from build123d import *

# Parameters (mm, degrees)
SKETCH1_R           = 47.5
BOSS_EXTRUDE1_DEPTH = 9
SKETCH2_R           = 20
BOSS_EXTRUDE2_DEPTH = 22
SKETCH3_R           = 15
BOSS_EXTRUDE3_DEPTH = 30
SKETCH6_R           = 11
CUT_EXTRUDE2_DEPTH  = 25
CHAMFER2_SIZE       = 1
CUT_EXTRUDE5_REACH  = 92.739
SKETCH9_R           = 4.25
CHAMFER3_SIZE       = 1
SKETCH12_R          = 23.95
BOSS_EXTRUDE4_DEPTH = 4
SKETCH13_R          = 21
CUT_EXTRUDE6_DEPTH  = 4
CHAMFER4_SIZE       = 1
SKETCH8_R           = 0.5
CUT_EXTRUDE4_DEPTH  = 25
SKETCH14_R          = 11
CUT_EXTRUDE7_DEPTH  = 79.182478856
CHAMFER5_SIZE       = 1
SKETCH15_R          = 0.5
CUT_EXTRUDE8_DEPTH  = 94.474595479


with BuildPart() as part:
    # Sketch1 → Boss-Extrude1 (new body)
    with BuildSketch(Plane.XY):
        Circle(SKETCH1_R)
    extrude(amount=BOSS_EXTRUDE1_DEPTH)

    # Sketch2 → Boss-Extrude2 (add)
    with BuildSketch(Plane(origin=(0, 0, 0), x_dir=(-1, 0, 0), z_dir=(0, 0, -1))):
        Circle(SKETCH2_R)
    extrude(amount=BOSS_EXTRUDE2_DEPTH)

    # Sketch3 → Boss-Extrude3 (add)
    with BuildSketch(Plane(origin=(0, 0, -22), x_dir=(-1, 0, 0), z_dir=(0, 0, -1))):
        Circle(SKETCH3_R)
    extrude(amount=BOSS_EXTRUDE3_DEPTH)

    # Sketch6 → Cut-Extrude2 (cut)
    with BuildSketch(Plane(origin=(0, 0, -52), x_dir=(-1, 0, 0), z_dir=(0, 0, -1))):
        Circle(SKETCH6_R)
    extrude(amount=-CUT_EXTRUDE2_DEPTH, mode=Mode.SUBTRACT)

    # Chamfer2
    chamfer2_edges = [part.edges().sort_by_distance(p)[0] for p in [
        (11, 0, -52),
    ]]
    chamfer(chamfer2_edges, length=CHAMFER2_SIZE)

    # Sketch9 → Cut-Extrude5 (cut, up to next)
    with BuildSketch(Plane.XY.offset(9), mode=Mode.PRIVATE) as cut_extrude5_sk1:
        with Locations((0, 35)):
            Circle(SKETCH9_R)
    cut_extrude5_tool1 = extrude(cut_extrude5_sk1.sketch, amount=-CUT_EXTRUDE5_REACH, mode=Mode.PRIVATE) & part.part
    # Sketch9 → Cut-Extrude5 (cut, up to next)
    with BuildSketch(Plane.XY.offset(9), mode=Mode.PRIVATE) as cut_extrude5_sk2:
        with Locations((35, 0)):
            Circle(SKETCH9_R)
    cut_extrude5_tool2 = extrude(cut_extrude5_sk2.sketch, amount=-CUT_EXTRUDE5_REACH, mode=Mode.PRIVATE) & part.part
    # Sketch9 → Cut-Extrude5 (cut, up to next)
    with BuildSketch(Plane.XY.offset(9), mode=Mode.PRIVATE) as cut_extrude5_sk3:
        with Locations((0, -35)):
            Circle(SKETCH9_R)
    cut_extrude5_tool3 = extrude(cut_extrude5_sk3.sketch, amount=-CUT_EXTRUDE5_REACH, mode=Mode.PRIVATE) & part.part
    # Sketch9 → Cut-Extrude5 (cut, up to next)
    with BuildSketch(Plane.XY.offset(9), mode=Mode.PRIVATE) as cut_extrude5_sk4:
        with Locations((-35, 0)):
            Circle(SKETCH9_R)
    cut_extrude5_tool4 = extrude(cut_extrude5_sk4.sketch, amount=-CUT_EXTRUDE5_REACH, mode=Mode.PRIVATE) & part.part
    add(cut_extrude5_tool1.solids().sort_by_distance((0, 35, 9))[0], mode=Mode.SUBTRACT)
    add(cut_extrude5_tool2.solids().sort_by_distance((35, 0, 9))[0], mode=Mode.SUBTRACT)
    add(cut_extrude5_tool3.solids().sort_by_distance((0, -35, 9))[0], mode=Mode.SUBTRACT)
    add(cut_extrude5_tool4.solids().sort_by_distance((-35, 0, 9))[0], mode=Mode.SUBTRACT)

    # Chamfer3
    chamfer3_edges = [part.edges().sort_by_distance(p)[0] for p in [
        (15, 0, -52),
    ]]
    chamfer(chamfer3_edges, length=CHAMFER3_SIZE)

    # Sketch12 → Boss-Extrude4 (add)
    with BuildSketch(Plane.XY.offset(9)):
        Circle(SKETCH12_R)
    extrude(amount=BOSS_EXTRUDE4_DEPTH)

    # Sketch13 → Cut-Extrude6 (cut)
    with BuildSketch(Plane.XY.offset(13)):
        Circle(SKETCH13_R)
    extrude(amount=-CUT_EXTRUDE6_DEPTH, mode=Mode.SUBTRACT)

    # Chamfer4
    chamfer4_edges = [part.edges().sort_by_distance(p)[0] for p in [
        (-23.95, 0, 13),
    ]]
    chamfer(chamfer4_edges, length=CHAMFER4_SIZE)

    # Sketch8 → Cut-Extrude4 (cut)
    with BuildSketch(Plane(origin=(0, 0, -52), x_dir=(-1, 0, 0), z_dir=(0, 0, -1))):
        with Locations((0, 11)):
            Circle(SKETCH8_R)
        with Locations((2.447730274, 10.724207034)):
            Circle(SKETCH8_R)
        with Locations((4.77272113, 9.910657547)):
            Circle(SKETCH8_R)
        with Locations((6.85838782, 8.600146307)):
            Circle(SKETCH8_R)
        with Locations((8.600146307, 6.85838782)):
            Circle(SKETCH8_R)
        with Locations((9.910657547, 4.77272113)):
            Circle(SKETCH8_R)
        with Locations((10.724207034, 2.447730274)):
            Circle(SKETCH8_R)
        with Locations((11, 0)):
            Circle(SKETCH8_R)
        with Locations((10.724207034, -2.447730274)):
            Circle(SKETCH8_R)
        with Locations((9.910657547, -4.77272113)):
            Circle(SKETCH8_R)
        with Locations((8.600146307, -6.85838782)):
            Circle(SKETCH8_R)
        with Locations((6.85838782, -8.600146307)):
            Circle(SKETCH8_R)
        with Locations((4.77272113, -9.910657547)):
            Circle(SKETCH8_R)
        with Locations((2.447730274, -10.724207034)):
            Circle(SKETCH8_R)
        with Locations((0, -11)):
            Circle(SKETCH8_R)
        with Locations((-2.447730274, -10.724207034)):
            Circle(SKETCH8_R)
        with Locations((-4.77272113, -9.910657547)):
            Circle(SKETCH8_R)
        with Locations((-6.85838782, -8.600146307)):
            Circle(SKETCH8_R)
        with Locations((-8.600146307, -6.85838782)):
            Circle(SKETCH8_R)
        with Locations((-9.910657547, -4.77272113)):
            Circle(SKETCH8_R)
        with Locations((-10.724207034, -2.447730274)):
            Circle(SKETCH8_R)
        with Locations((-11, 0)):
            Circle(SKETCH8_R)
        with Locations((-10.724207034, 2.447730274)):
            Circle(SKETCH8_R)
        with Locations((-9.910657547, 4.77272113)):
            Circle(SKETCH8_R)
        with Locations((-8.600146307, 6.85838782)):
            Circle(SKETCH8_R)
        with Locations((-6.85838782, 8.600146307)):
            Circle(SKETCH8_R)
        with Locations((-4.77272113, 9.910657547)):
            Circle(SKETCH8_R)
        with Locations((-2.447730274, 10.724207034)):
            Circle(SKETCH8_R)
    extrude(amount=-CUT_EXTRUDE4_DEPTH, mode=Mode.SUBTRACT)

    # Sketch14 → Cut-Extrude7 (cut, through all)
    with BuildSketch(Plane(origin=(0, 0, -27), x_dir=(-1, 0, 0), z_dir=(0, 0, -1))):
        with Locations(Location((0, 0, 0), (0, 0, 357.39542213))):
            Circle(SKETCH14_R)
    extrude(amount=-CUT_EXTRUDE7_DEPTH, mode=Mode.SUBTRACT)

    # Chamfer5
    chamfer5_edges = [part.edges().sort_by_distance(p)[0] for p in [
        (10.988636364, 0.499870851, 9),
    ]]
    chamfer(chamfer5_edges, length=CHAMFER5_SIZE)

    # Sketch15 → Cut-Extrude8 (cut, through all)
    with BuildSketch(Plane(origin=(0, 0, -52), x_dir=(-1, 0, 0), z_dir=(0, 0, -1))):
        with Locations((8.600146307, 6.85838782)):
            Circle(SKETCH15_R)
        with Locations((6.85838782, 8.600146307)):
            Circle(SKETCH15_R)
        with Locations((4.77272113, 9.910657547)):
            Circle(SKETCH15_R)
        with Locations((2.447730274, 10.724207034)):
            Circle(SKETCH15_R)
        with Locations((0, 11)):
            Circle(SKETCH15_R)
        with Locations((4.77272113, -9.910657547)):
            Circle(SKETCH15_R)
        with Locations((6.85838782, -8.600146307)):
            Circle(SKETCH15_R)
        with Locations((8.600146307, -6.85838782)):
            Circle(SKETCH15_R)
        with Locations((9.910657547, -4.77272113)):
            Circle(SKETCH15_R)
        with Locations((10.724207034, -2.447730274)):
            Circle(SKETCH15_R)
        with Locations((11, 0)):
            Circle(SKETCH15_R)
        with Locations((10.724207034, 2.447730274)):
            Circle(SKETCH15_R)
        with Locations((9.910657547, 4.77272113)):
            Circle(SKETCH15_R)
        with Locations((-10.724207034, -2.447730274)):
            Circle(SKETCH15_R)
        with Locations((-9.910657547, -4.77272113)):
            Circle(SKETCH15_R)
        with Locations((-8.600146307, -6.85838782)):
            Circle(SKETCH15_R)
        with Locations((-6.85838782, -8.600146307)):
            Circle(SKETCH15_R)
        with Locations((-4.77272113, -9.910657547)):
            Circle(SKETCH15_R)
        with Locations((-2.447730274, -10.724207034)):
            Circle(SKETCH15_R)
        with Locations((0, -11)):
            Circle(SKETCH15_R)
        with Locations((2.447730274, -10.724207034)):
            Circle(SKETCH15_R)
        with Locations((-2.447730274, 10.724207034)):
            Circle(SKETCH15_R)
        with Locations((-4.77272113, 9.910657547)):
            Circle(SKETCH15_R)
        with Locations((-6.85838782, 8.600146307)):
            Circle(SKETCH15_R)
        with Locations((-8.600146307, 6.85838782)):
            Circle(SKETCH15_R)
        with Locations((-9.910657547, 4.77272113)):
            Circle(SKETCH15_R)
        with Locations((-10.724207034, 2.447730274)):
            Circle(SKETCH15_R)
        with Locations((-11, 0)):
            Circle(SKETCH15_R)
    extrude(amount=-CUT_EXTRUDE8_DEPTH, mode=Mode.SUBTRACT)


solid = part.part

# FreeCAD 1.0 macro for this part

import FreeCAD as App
import Part
import Sketcher
from FreeCAD import Vector
Q = App.Units.Quantity


def edges_at(feature, points):
    """Names of the edges that pass closest to the given points."""
    edges = feature.Shape.Edges
    near = lambda p: min(range(len(edges)), key=lambda i: edges[i].distToShape(Part.Vertex(*p))[0])
    return sorted({f"Edge{near(p) + 1}" for p in points})

doc = App.newDocument("Part")
body = doc.addObject("PartDesign::Body", "Body")

# Sketch on XY plane
sketch1 = body.newObject("Sketcher::SketchObject", "Sketch")
sketch1.AttachmentSupport = (doc.getObject("XY_Plane"), [""])
sketch1.MapMode = "FlatFace"
sketch1.addGeometry(Part.Circle(Vector(0, 0, 0), Vector(0, 0, 1), 48), False)
sketch1.addConstraint([
    Sketcher.Constraint("Coincident", 0, 3, -1, 1),
    Sketcher.Constraint("Diameter", 0, Q("95 mm")),
])
pad1 = body.newObject("PartDesign::Pad", "Pad")
pad1.Profile = sketch1
pad1.Length = 9

# Sketch on XY plane
sketch2 = body.newObject("Sketcher::SketchObject", "Sketch001")
sketch2.AttachmentSupport = (doc.getObject("XY_Plane"), [""])
sketch2.MapMode = "FlatFace"
sketch2.addGeometry(Part.Circle(Vector(0, 0, 0), Vector(0, 0, 1), 20), False)
sketch2.addConstraint([
    Sketcher.Constraint("Coincident", 0, 3, -1, 1),
    Sketcher.Constraint("Diameter", 0, Q("40 mm")),
])
pad2 = body.newObject("PartDesign::Pad", "Pad001")
pad2.Profile = sketch2
pad2.Length = 22
pad2.Reversed = True

# Sketch on XY plane
sketch3 = body.newObject("Sketcher::SketchObject", "Sketch002")
sketch3.AttachmentSupport = (doc.getObject("XY_Plane"), [""])
sketch3.MapMode = "FlatFace"
sketch3.AttachmentOffset = App.Placement(Vector(0, 0, -22), App.Rotation())
sketch3.addGeometry(Part.Circle(Vector(0, 0, 0), Vector(0, 0, 1), 15), False)
sketch3.addConstraint([
    Sketcher.Constraint("Coincident", 0, 3, -1, 1),
    Sketcher.Constraint("Diameter", 0, Q("30 mm")),
])
pad3 = body.newObject("PartDesign::Pad", "Pad002")
pad3.Profile = sketch3
pad3.Length = 30
pad3.Reversed = True

# Sketch on XY plane
sketch4 = body.newObject("Sketcher::SketchObject", "Sketch003")
sketch4.AttachmentSupport = (doc.getObject("XY_Plane"), [""])
sketch4.MapMode = "FlatFace"
sketch4.AttachmentOffset = App.Placement(Vector(0, 0, -52), App.Rotation())
sketch4.addGeometry(Part.Circle(Vector(0, 0, 0), Vector(0, 0, 1), 11), False)
sketch4.addConstraint([
    Sketcher.Constraint("Coincident", 0, 3, -1, 1),
    Sketcher.Constraint("Diameter", 0, Q("22 mm")),
])
pocket1 = body.newObject("PartDesign::Pocket", "Pocket")
pocket1.Profile = sketch4
pocket1.Length = 25
pocket1.Reversed = True
doc.recompute()

chamfer = body.newObject("PartDesign::Chamfer", "Chamfer")
chamfer.Base = (pocket1, edges_at(pocket1, [(11, 0, -52)]))
chamfer.Size = 1

# Sketch on XY plane
sketch5 = body.newObject("Sketcher::SketchObject", "Sketch004")
sketch5.AttachmentSupport = (doc.getObject("XY_Plane"), [""])
sketch5.MapMode = "FlatFace"
sketch5.AttachmentOffset = App.Placement(Vector(0, 0, 9), App.Rotation())
sketch5.addGeometry(Part.Circle(Vector(0, 35, 0), Vector(0, 0, 1), 4.2), False)
sketch5.addConstraint([
    Sketcher.Constraint("PointOnObject", 0, 3, -2),
    Sketcher.Constraint("Diameter", 0, Q("8.5 mm")),
    Sketcher.Constraint("DistanceY", -1, 1, 0, 3, Q("35 mm")),
])
pocket2 = body.newObject("PartDesign::Pocket", "Pocket001")
pocket2.Profile = sketch5
pocket2.Type = "UpToFirst"

# Sketch on XY plane
sketch6 = body.newObject("Sketcher::SketchObject", "Sketch005")
sketch6.AttachmentSupport = (doc.getObject("XY_Plane"), [""])
sketch6.MapMode = "FlatFace"
sketch6.AttachmentOffset = App.Placement(Vector(0, 0, 9), App.Rotation())
sketch6.addGeometry(Part.Circle(Vector(35, 0, 0), Vector(0, 0, 1), 4.2), False)
sketch6.addConstraint([
    Sketcher.Constraint("PointOnObject", 0, 3, -1),
    Sketcher.Constraint("Diameter", 0, Q("8.5 mm")),
    Sketcher.Constraint("DistanceX", -1, 1, 0, 3, Q("35 mm")),
])
pocket3 = body.newObject("PartDesign::Pocket", "Pocket002")
pocket3.Profile = sketch6
pocket3.Type = "UpToFirst"

# Sketch on XY plane
sketch7 = body.newObject("Sketcher::SketchObject", "Sketch006")
sketch7.AttachmentSupport = (doc.getObject("XY_Plane"), [""])
sketch7.MapMode = "FlatFace"
sketch7.AttachmentOffset = App.Placement(Vector(0, 0, 9), App.Rotation())
sketch7.addGeometry(Part.Circle(Vector(0, -35, 0), Vector(0, 0, 1), 4.2), False)
sketch7.addConstraint([
    Sketcher.Constraint("PointOnObject", 0, 3, -2),
    Sketcher.Constraint("Diameter", 0, Q("8.5 mm")),
    Sketcher.Constraint("DistanceY", 0, 3, -1, 1, Q("35 mm")),
])
pocket4 = body.newObject("PartDesign::Pocket", "Pocket003")
pocket4.Profile = sketch7
pocket4.Type = "UpToFirst"

# Sketch on XY plane
sketch8 = body.newObject("Sketcher::SketchObject", "Sketch007")
sketch8.AttachmentSupport = (doc.getObject("XY_Plane"), [""])
sketch8.MapMode = "FlatFace"
sketch8.AttachmentOffset = App.Placement(Vector(0, 0, 9), App.Rotation())
sketch8.addGeometry(Part.Circle(Vector(-35, 0, 0), Vector(0, 0, 1), 4.2), False)
sketch8.addConstraint([
    Sketcher.Constraint("PointOnObject", 0, 3, -1),
    Sketcher.Constraint("Diameter", 0, Q("8.5 mm")),
    Sketcher.Constraint("DistanceX", 0, 3, -1, 1, Q("35 mm")),
])
pocket5 = body.newObject("PartDesign::Pocket", "Pocket004")
pocket5.Profile = sketch8
pocket5.Type = "UpToFirst"
doc.recompute()

chamfer2 = body.newObject("PartDesign::Chamfer", "Chamfer001")
chamfer2.Base = (pocket5, edges_at(pocket5, [(15, 0, -52)]))
chamfer2.Size = 1

# Sketch on XY plane
sketch9 = body.newObject("Sketcher::SketchObject", "Sketch008")
sketch9.AttachmentSupport = (doc.getObject("XY_Plane"), [""])
sketch9.MapMode = "FlatFace"
sketch9.AttachmentOffset = App.Placement(Vector(0, 0, 9), App.Rotation())
sketch9.addGeometry(Part.Circle(Vector(0, 0, 0), Vector(0, 0, 1), 24), False)
sketch9.addConstraint([
    Sketcher.Constraint("Coincident", 0, 3, -1, 1),
    Sketcher.Constraint("Diameter", 0, Q("47.9 mm")),
])
pad4 = body.newObject("PartDesign::Pad", "Pad003")
pad4.Profile = sketch9
pad4.Length = 4

# Sketch on XY plane
sketch10 = body.newObject("Sketcher::SketchObject", "Sketch009")
sketch10.AttachmentSupport = (doc.getObject("XY_Plane"), [""])
sketch10.MapMode = "FlatFace"
sketch10.AttachmentOffset = App.Placement(Vector(0, 0, 13), App.Rotation())
sketch10.addGeometry(Part.Circle(Vector(0, 0, 0), Vector(0, 0, 1), 21), False)
sketch10.addConstraint([
    Sketcher.Constraint("Coincident", 0, 3, -1, 1),
    Sketcher.Constraint("Diameter", 0, Q("42 mm")),
])
pocket6 = body.newObject("PartDesign::Pocket", "Pocket005")
pocket6.Profile = sketch10
pocket6.Length = 4
doc.recompute()

chamfer3 = body.newObject("PartDesign::Chamfer", "Chamfer002")
chamfer3.Base = (pocket6, edges_at(pocket6, [(-23.95, 0, 13)]))
chamfer3.Size = 1

# Sketch on XY plane
sketch11 = body.newObject("Sketcher::SketchObject", "Sketch010")
sketch11.AttachmentSupport = (doc.getObject("XY_Plane"), [""])
sketch11.MapMode = "FlatFace"
sketch11.AttachmentOffset = App.Placement(Vector(0, 0, -52), App.Rotation())
sketch11.addGeometry([
    Part.Circle(Vector(0, 11, 0), Vector(0, 0, 1), 0.5),  # 0
    Part.Circle(Vector(-2.4, 10.7, 0), Vector(0, 0, 1), 0.5),  # 1
    Part.Circle(Vector(-4.8, 9.9, 0), Vector(0, 0, 1), 0.5),  # 2
    Part.Circle(Vector(-6.9, 8.6, 0), Vector(0, 0, 1), 0.5),  # 3
    Part.Circle(Vector(-8.6, 6.9, 0), Vector(0, 0, 1), 0.5),  # 4
    Part.Circle(Vector(-9.9, 4.8, 0), Vector(0, 0, 1), 0.5),  # 5
    Part.Circle(Vector(-10.7, 2.4, 0), Vector(0, 0, 1), 0.5),  # 6
    Part.Circle(Vector(-11, 0, 0), Vector(0, 0, 1), 0.5),  # 7
    Part.Circle(Vector(-10.7, -2.4, 0), Vector(0, 0, 1), 0.5),  # 8
    Part.Circle(Vector(-9.9, -4.8, 0), Vector(0, 0, 1), 0.5),  # 9
    Part.Circle(Vector(-8.6, -6.9, 0), Vector(0, 0, 1), 0.5),  # 10
    Part.Circle(Vector(-6.9, -8.6, 0), Vector(0, 0, 1), 0.5),  # 11
    Part.Circle(Vector(-4.8, -9.9, 0), Vector(0, 0, 1), 0.5),  # 12
    Part.Circle(Vector(-2.4, -10.7, 0), Vector(0, 0, 1), 0.5),  # 13
    Part.Circle(Vector(0, -11, 0), Vector(0, 0, 1), 0.5),  # 14
    Part.Circle(Vector(2.4, -10.7, 0), Vector(0, 0, 1), 0.5),  # 15
    Part.Circle(Vector(4.8, -9.9, 0), Vector(0, 0, 1), 0.5),  # 16
    Part.Circle(Vector(6.9, -8.6, 0), Vector(0, 0, 1), 0.5),  # 17
    Part.Circle(Vector(8.6, -6.9, 0), Vector(0, 0, 1), 0.5),  # 18
    Part.Circle(Vector(9.9, -4.8, 0), Vector(0, 0, 1), 0.5),  # 19
    Part.Circle(Vector(10.7, -2.4, 0), Vector(0, 0, 1), 0.5),  # 20
    Part.Circle(Vector(11, 0, 0), Vector(0, 0, 1), 0.5),  # 21
    Part.Circle(Vector(10.7, 2.4, 0), Vector(0, 0, 1), 0.5),  # 22
    Part.Circle(Vector(9.9, 4.8, 0), Vector(0, 0, 1), 0.5),  # 23
    Part.Circle(Vector(8.6, 6.9, 0), Vector(0, 0, 1), 0.5),  # 24
    Part.Circle(Vector(6.9, 8.6, 0), Vector(0, 0, 1), 0.5),  # 25
    Part.Circle(Vector(4.8, 9.9, 0), Vector(0, 0, 1), 0.5),  # 26
    Part.Circle(Vector(2.4, 10.7, 0), Vector(0, 0, 1), 0.5),  # 27
], False)
sketch11.addConstraint([
    Sketcher.Constraint("Equal", 0, 1),
    Sketcher.Constraint("Equal", 1, 2),
    Sketcher.Constraint("Equal", 2, 3),
    Sketcher.Constraint("Equal", 3, 4),
    Sketcher.Constraint("Equal", 4, 5),
    Sketcher.Constraint("Equal", 5, 6),
    Sketcher.Constraint("Equal", 6, 7),
    Sketcher.Constraint("Equal", 7, 8),
    Sketcher.Constraint("Equal", 8, 9),
    Sketcher.Constraint("Equal", 9, 10),
    Sketcher.Constraint("Equal", 10, 11),
    Sketcher.Constraint("Equal", 11, 12),
    Sketcher.Constraint("Equal", 12, 13),
    Sketcher.Constraint("Equal", 13, 14),
    Sketcher.Constraint("Equal", 14, 15),
    Sketcher.Constraint("Equal", 15, 16),
    Sketcher.Constraint("Equal", 16, 17),
    Sketcher.Constraint("Equal", 17, 18),
    Sketcher.Constraint("Equal", 18, 19),
    Sketcher.Constraint("Equal", 19, 20),
    Sketcher.Constraint("Equal", 20, 21),
    Sketcher.Constraint("Equal", 21, 22),
    Sketcher.Constraint("Equal", 22, 23),
    Sketcher.Constraint("Equal", 23, 24),
    Sketcher.Constraint("Equal", 24, 25),
    Sketcher.Constraint("Equal", 25, 26),
    Sketcher.Constraint("Equal", 26, 27),
    Sketcher.Constraint("Symmetric", 0, 3, 14, 3, -1, 1),
    Sketcher.Constraint("Symmetric", 1, 3, 15, 3, -1, 1),
    Sketcher.Constraint("Symmetric", 2, 3, 16, 3, -1, 1),
    Sketcher.Constraint("Symmetric", 3, 3, 17, 3, -1, 1),
    Sketcher.Constraint("Symmetric", 4, 3, 18, 3, -1, 1),
    Sketcher.Constraint("Symmetric", 5, 3, 19, 3, -1, 1),
    Sketcher.Constraint("Symmetric", 6, 3, 20, 3, -1, 1),
    Sketcher.Constraint("Symmetric", 7, 3, 21, 3, -1, 1),
    Sketcher.Constraint("Symmetric", 8, 3, 22, 3, -1, 1),
    Sketcher.Constraint("Symmetric", 9, 3, 23, 3, -1, 1),
    Sketcher.Constraint("Symmetric", 10, 3, 24, 3, -1, 1),
    Sketcher.Constraint("Symmetric", 11, 3, 25, 3, -1, 1),
    Sketcher.Constraint("Symmetric", 12, 3, 26, 3, -1, 1),
    Sketcher.Constraint("Symmetric", 13, 3, 27, 3, -1, 1),
    Sketcher.Constraint("Symmetric", 13, 3, 15, 3, -2),
    Sketcher.Constraint("Symmetric", 12, 3, 16, 3, -2),
    Sketcher.Constraint("Symmetric", 11, 3, 17, 3, -2),
    Sketcher.Constraint("Symmetric", 10, 3, 18, 3, -2),
    Sketcher.Constraint("Symmetric", 9, 3, 19, 3, -2),
    Sketcher.Constraint("Symmetric", 8, 3, 20, 3, -2),
    Sketcher.Constraint("PointOnObject", 0, 3, -2),
    Sketcher.Constraint("PointOnObject", 7, 3, -1),
    Sketcher.Constraint("Diameter", 0, Q("1 mm")),
    Sketcher.Constraint("DistanceY", -1, 1, 0, 3, Q("11 mm")),
    Sketcher.Constraint("DistanceX", 7, 3, -1, 1, Q("11 mm")),
    Sketcher.Constraint("DistanceX", 1, 3, -1, 1, Q("2.44773 mm")),
    Sketcher.Constraint("DistanceX", 2, 3, -1, 1, Q("4.772721 mm")),
    Sketcher.Constraint("DistanceY", -1, 1, 5, 3, Q("4.772721 mm")),
    Sketcher.Constraint("DistanceY", -1, 1, 6, 3, Q("2.44773 mm")),
    Sketcher.Constraint("DistanceY", 2, 3, 1, 3, Q("0.813549 mm")),
    Sketcher.Constraint("DistanceY", 3, 3, 2, 3, Q("1.310511 mm")),
    Sketcher.Constraint("DistanceX", 4, 3, 3, 3, Q("1.741758 mm")),
    Sketcher.Constraint("DistanceY", 4, 3, 3, 3, Q("1.741758 mm")),
    Sketcher.Constraint("DistanceX", 5, 3, 4, 3, Q("1.310511 mm")),
    Sketcher.Constraint("DistanceX", 6, 3, 5, 3, Q("0.813549 mm")),
    Sketcher.Constraint("DistanceY", 8, 3, 4, 3, Q("9.306118 mm")),
    Sketcher.Constraint("DistanceX", 11, 3, 15, 3, Q("9.306118 mm")),
])
pocket7 = body.newObject("PartDesign::Pocket", "Pocket006")
pocket7.Profile = sketch11
pocket7.Length = 25
pocket7.Reversed = True

# Sketch on XY plane
sketch12 = body.newObject("Sketcher::SketchObject", "Sketch011")
sketch12.AttachmentSupport = (doc.getObject("XY_Plane"), [""])
sketch12.MapMode = "FlatFace"
sketch12.AttachmentOffset = App.Placement(Vector(0, 0, -27), App.Rotation())
sketch12.addGeometry(Part.Circle(Vector(0, 0, 0), Vector(0, 0, 1), 11), False)
sketch12.addConstraint([
    Sketcher.Constraint("Coincident", 0, 3, -1, 1),
    Sketcher.Constraint("Diameter", 0, Q("22 mm")),
])
pocket8 = body.newObject("PartDesign::Pocket", "Pocket007")
pocket8.Profile = sketch12
pocket8.Type = "ThroughAll"
pocket8.Reversed = True
doc.recompute()

chamfer4 = body.newObject("PartDesign::Chamfer", "Chamfer003")
chamfer4.Base = (pocket8, edges_at(pocket8, [(10.989, 0.5, 9)]))
chamfer4.Size = 1

# Sketch on XY plane
sketch13 = body.newObject("Sketcher::SketchObject", "Sketch012")
sketch13.AttachmentSupport = (doc.getObject("XY_Plane"), [""])
sketch13.MapMode = "FlatFace"
sketch13.AttachmentOffset = App.Placement(Vector(0, 0, -52), App.Rotation())
sketch13.addGeometry([
    Part.Circle(Vector(-8.6, 6.9, 0), Vector(0, 0, 1), 0.5),  # 0
    Part.Circle(Vector(-6.9, 8.6, 0), Vector(0, 0, 1), 0.5),  # 1
    Part.Circle(Vector(-4.8, 9.9, 0), Vector(0, 0, 1), 0.5),  # 2
    Part.Circle(Vector(-2.4, 10.7, 0), Vector(0, 0, 1), 0.5),  # 3
    Part.Circle(Vector(0, 11, 0), Vector(0, 0, 1), 0.5),  # 4
    Part.Circle(Vector(-4.8, -9.9, 0), Vector(0, 0, 1), 0.5),  # 5
    Part.Circle(Vector(-6.9, -8.6, 0), Vector(0, 0, 1), 0.5),  # 6
    Part.Circle(Vector(-8.6, -6.9, 0), Vector(0, 0, 1), 0.5),  # 7
    Part.Circle(Vector(-9.9, -4.8, 0), Vector(0, 0, 1), 0.5),  # 8
    Part.Circle(Vector(-10.7, -2.4, 0), Vector(0, 0, 1), 0.5),  # 9
    Part.Circle(Vector(-11, 0, 0), Vector(0, 0, 1), 0.5),  # 10
    Part.Circle(Vector(-10.7, 2.4, 0), Vector(0, 0, 1), 0.5),  # 11
    Part.Circle(Vector(-9.9, 4.8, 0), Vector(0, 0, 1), 0.5),  # 12
    Part.Circle(Vector(10.7, -2.4, 0), Vector(0, 0, 1), 0.5),  # 13
    Part.Circle(Vector(9.9, -4.8, 0), Vector(0, 0, 1), 0.5),  # 14
    Part.Circle(Vector(8.6, -6.9, 0), Vector(0, 0, 1), 0.5),  # 15
    Part.Circle(Vector(6.9, -8.6, 0), Vector(0, 0, 1), 0.5),  # 16
    Part.Circle(Vector(4.8, -9.9, 0), Vector(0, 0, 1), 0.5),  # 17
    Part.Circle(Vector(2.4, -10.7, 0), Vector(0, 0, 1), 0.5),  # 18
    Part.Circle(Vector(0, -11, 0), Vector(0, 0, 1), 0.5),  # 19
    Part.Circle(Vector(-2.4, -10.7, 0), Vector(0, 0, 1), 0.5),  # 20
    Part.Circle(Vector(2.4, 10.7, 0), Vector(0, 0, 1), 0.5),  # 21
    Part.Circle(Vector(4.8, 9.9, 0), Vector(0, 0, 1), 0.5),  # 22
    Part.Circle(Vector(6.9, 8.6, 0), Vector(0, 0, 1), 0.5),  # 23
    Part.Circle(Vector(8.6, 6.9, 0), Vector(0, 0, 1), 0.5),  # 24
    Part.Circle(Vector(9.9, 4.8, 0), Vector(0, 0, 1), 0.5),  # 25
    Part.Circle(Vector(10.7, 2.4, 0), Vector(0, 0, 1), 0.5),  # 26
    Part.Circle(Vector(11, 0, 0), Vector(0, 0, 1), 0.5),  # 27
], False)
sketch13.addConstraint([
    Sketcher.Constraint("Equal", 0, 1),
    Sketcher.Constraint("Equal", 1, 2),
    Sketcher.Constraint("Equal", 2, 3),
    Sketcher.Constraint("Equal", 3, 4),
    Sketcher.Constraint("Equal", 4, 5),
    Sketcher.Constraint("Equal", 5, 6),
    Sketcher.Constraint("Equal", 6, 7),
    Sketcher.Constraint("Equal", 7, 8),
    Sketcher.Constraint("Equal", 8, 9),
    Sketcher.Constraint("Equal", 9, 10),
    Sketcher.Constraint("Equal", 10, 11),
    Sketcher.Constraint("Equal", 11, 12),
    Sketcher.Constraint("Equal", 12, 13),
    Sketcher.Constraint("Equal", 13, 14),
    Sketcher.Constraint("Equal", 14, 15),
    Sketcher.Constraint("Equal", 15, 16),
    Sketcher.Constraint("Equal", 16, 17),
    Sketcher.Constraint("Equal", 17, 18),
    Sketcher.Constraint("Equal", 18, 19),
    Sketcher.Constraint("Equal", 19, 20),
    Sketcher.Constraint("Equal", 20, 21),
    Sketcher.Constraint("Equal", 21, 22),
    Sketcher.Constraint("Equal", 22, 23),
    Sketcher.Constraint("Equal", 23, 24),
    Sketcher.Constraint("Equal", 24, 25),
    Sketcher.Constraint("Equal", 25, 26),
    Sketcher.Constraint("Equal", 26, 27),
    Sketcher.Constraint("Symmetric", 11, 3, 13, 3, -1, 1),
    Sketcher.Constraint("Symmetric", 12, 3, 14, 3, -1, 1),
    Sketcher.Constraint("Symmetric", 0, 3, 15, 3, -1, 1),
    Sketcher.Constraint("Symmetric", 1, 3, 16, 3, -1, 1),
    Sketcher.Constraint("Symmetric", 2, 3, 17, 3, -1, 1),
    Sketcher.Constraint("Symmetric", 3, 3, 18, 3, -1, 1),
    Sketcher.Constraint("Symmetric", 4, 3, 19, 3, -1, 1),
    Sketcher.Constraint("Symmetric", 20, 3, 21, 3, -1, 1),
    Sketcher.Constraint("Symmetric", 5, 3, 22, 3, -1, 1),
    Sketcher.Constraint("Symmetric", 6, 3, 23, 3, -1, 1),
    Sketcher.Constraint("Symmetric", 7, 3, 24, 3, -1, 1),
    Sketcher.Constraint("Symmetric", 8, 3, 25, 3, -1, 1),
    Sketcher.Constraint("Symmetric", 9, 3, 26, 3, -1, 1),
    Sketcher.Constraint("Symmetric", 10, 3, 27, 3, -1, 1),
    Sketcher.Constraint("Symmetric", 9, 3, 13, 3, -2),
    Sketcher.Constraint("Symmetric", 8, 3, 14, 3, -2),
    Sketcher.Constraint("Symmetric", 7, 3, 15, 3, -2),
    Sketcher.Constraint("Symmetric", 6, 3, 16, 3, -2),
    Sketcher.Constraint("Symmetric", 5, 3, 17, 3, -2),
    Sketcher.Constraint("Symmetric", 18, 3, 20, 3, -2),
    Sketcher.Constraint("PointOnObject", 4, 3, -2),
    Sketcher.Constraint("PointOnObject", 10, 3, -1),
    Sketcher.Constraint("Diameter", 0, Q("1 mm")),
    Sketcher.Constraint("DistanceY", -1, 1, 4, 3, Q("11 mm")),
    Sketcher.Constraint("DistanceX", 10, 3, -1, 1, Q("11 mm")),
    Sketcher.Constraint("DistanceX", 2, 3, -1, 1, Q("4.772721 mm")),
    Sketcher.Constraint("DistanceX", 3, 3, -1, 1, Q("2.44773 mm")),
    Sketcher.Constraint("DistanceY", 8, 3, -1, 1, Q("4.772721 mm")),
    Sketcher.Constraint("DistanceY", 9, 3, -1, 1, Q("2.44773 mm")),
    Sketcher.Constraint("DistanceX", 0, 3, 1, 3, Q("1.741758 mm")),
    Sketcher.Constraint("DistanceY", 0, 3, 1, 3, Q("1.741758 mm")),
    Sketcher.Constraint("DistanceY", 1, 3, 2, 3, Q("1.310511 mm")),
    Sketcher.Constraint("DistanceY", 2, 3, 3, 3, Q("0.813549 mm")),
    Sketcher.Constraint("DistanceX", 8, 3, 7, 3, Q("1.310511 mm")),
    Sketcher.Constraint("DistanceY", 8, 3, 0, 3, Q("11.631109 mm")),
    Sketcher.Constraint("DistanceX", 9, 3, 8, 3, Q("0.813549 mm")),
    Sketcher.Constraint("DistanceX", 5, 3, 13, 3, Q("15.496928 mm")),
])
pocket9 = body.newObject("PartDesign::Pocket", "Pocket008")
pocket9.Profile = sketch13
pocket9.Type = "ThroughAll"
pocket9.Reversed = True

doc.recompute()
